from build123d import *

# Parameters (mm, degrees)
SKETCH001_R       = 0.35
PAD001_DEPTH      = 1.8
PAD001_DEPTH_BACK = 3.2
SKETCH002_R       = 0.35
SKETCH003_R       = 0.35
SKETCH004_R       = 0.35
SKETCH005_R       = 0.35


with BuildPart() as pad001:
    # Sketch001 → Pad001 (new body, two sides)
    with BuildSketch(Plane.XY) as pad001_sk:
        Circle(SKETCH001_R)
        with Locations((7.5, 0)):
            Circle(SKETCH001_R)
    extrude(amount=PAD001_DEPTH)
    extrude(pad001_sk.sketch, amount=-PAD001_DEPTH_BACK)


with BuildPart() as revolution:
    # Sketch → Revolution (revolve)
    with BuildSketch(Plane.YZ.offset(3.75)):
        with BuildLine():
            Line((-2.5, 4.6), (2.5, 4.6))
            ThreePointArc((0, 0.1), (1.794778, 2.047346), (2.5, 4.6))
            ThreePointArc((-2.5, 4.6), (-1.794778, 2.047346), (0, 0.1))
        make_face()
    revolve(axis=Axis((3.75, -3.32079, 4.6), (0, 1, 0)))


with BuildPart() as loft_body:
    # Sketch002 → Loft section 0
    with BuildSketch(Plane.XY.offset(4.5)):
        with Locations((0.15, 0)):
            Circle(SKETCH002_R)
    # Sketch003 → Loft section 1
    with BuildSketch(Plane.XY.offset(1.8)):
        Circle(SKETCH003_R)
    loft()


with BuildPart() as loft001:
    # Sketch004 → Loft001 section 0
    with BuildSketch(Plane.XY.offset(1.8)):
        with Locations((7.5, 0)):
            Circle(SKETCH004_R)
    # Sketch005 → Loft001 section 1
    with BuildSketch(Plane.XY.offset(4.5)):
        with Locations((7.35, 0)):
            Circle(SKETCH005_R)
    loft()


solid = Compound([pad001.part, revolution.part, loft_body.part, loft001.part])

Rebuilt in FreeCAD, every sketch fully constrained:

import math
import FreeCAD as App
import Part
import Sketcher

V = App.Vector

doc = App.newDocument("Part")
params = doc.addObject("Spreadsheet::Sheet", "Params")
for row, (alias, value) in enumerate([
    ("sketch1_diameter", "0.7 mm"),
    ("pad1_length", "1.8 mm"),
    ("pad1_length2", "3.2 mm"),
    ("sketch2_width", "5 mm"),
    ("revolution_angle", "360 deg"),
    ("sketch3_diameter", "0.7 mm"),
    ("sketch4_diameter", "0.7 mm"),
    ("sketch5_diameter", "0.7 mm"),
    ("sketch6_diameter", "0.7 mm"),
], start=1):
    params.set(f"A{row}", alias)
    params.set(f"B{row}", "=" + value)
    params.setAlias(f"B{row}", alias)

body = doc.addObject("PartDesign::Body", "Body")
body.AllowCompound = True

sketch1 = body.newObject("Sketcher::SketchObject", "Sketch")
sketch1.AttachmentSupport = (doc.getObject("XY_Plane"), [""])
sketch1.MapMode = "FlatFace"
sketch1.addGeometry(Part.Circle(V(0, 0, 0), V(0, 0, 1), 0.35), False)
sketch1.addGeometry(Part.Circle(V(7.5, 0, 0), V(0, 0, 1), 0.35), False)
sketch1.addConstraint(Sketcher.Constraint("Coincident", 0, 3, -1, 1))
sketch1.addConstraint(Sketcher.Constraint("Equal", 0, 1))
sketch1.addConstraint(Sketcher.Constraint("PointOnObject", 1, 3, -1))
sketch1.addConstraint(Sketcher.Constraint("Diameter", 0, 0.7))
sketch1.addConstraint(Sketcher.Constraint("DistanceX", -1, 1, 1, 3, 7.5))
sketch1.setExpression("Constraints[3]", "Params.sketch1_diameter")
pad1 = body.newObject("PartDesign::Pad", "Pad")
pad1.Profile = sketch1
pad1.Type = "TwoLengths"
pad1.setExpression("Length", "Params.pad1_length")
pad1.setExpression("Length2", "Params.pad1_length2")
body2 = doc.addObject("PartDesign::Body", "Body001")

sketch2 = body2.newObject("Sketcher::SketchObject", "Sketch001")
sketch2.AttachmentSupport = (doc.getObject("YZ_Plane001"), [""])
sketch2.MapMode = "FlatFace"
sketch2.AttachmentOffset = App.Placement(V(0, 0, 3.75), App.Rotation())
sketch2.addGeometry(Part.LineSegment(V(2.5, 4.6, 0), V(-2.5, 4.6, 0)), False)
sketch2.addGeometry(Part.ArcOfCircle(Part.Circle(V(3.124001, 4.78, 0), V(0, 0, 1), 5.626881), math.radians(-178.166831), math.radians(-123.723961)), False)
sketch2.addGeometry(Part.ArcOfCircle(Part.Circle(V(-3.124001, 4.78, 0), V(0, 0, 1), 5.626881), math.radians(-56.276039), math.radians(-1.833169)), False)
sketch2.addGeometry(Part.LineSegment(V(-3.124001, 4.6, 0), V(3.124001, 4.6, 0)), True)
sketch2.addConstraint(Sketcher.Constraint("Coincident", 0, 2, 1, 1))
sketch2.addConstraint(Sketcher.Constraint("Coincident", 1, 2, 2, 1))
sketch2.addConstraint(Sketcher.Constraint("Coincident", 2, 2, 0, 1))
sketch2.addConstraint(Sketcher.Constraint("Horizontal", 0))
sketch2.addConstraint(Sketcher.Constraint("Horizontal", 3))
sketch2.addConstraint(Sketcher.Constraint("Equal", 1, 2))
sketch2.addConstraint(Sketcher.Constraint("Symmetric", 1, 3, 2, 3, -2))
sketch2.addConstraint(Sketcher.Constraint("Horizontal", 2, 2, 3, 1))
sketch2.addConstraint(Sketcher.Constraint("Vertical", 2, 3, 3, 1))
sketch2.addConstraint(Sketcher.Constraint("Vertical", 1, 3, 3, 2))
sketch2.addConstraint(Sketcher.Constraint("DistanceX", 0, 2, 0, 1, 5.0))
sketch2.addConstraint(Sketcher.Constraint("DistanceY", -1, 1, 0, 2, 4.6))
sketch2.addConstraint(Sketcher.Constraint("DistanceY", -1, 1, 1, 2, 0.1))
sketch2.addConstraint(Sketcher.Constraint("DistanceX", 3, 1, 3, 2, 6.248002))
sketch2.setExpression("Constraints[10]", "Params.sketch2_width")
revolution = body2.newObject("PartDesign::Revolution", "Revolution")
revolution.Profile = sketch2
revolution.ReferenceAxis = (sketch2, ["Axis0"])
revolution.setExpression("Angle", "Params.revolution_angle")
body3 = doc.addObject("PartDesign::Body", "Body002")

sketch3 = body3.newObject("Sketcher::SketchObject", "Sketch002")
sketch3.AttachmentSupport = (doc.getObject("XY_Plane002"), [""])
sketch3.MapMode = "FlatFace"
sketch3.AttachmentOffset = App.Placement(V(0, 0, 4.5), App.Rotation())
sketch3.addGeometry(Part.Circle(V(0.15, 0, 0), V(0, 0, 1), 0.35), False)
sketch3.addConstraint(Sketcher.Constraint("PointOnObject", 0, 3, -1))
sketch3.addConstraint(Sketcher.Constraint("Diameter", 0, 0.7))
sketch3.addConstraint(Sketcher.Constraint("DistanceX", -1, 1, 0, 3, 0.15))
sketch3.setExpression("Constraints[1]", "Params.sketch3_diameter")

sketch4 = body3.newObject("Sketcher::SketchObject", "Sketch003")
sketch4.AttachmentSupport = (doc.getObject("XY_Plane002"), [""])
sketch4.MapMode = "FlatFace"
sketch4.AttachmentOffset = App.Placement(V(0, 0, 1.8), App.Rotation())
sketch4.addGeometry(Part.Circle(V(0, 0, 0), V(0, 0, 1), 0.35), False)
sketch4.addConstraint(Sketcher.Constraint("Coincident", 0, 3, -1, 1))
sketch4.addConstraint(Sketcher.Constraint("Diameter", 0, 0.7))
sketch4.setExpression("Constraints[1]", "Params.sketch4_diameter")

additiveloft = body3.newObject("PartDesign::AdditiveLoft", "AdditiveLoft")
additiveloft.Profile = sketch3
additiveloft.Sections = [sketch4]
body4 = doc.addObject("PartDesign::Body", "Body003")

sketch5 = body4.newObject("Sketcher::SketchObject", "Sketch004")
sketch5.AttachmentSupport = (doc.getObject("XY_Plane003"), [""])
sketch5.MapMode = "FlatFace"
sketch5.AttachmentOffset = App.Placement(V(0, 0, 1.8), App.Rotation())
sketch5.addGeometry(Part.Circle(V(7.5, 0, 0), V(0, 0, 1), 0.35), False)
sketch5.addConstraint(Sketcher.Constraint("PointOnObject", 0, 3, -1))
sketch5.addConstraint(Sketcher.Constraint("Diameter", 0, 0.7))
sketch5.addConstraint(Sketcher.Constraint("DistanceX", -1, 1, 0, 3, 7.5))
sketch5.setExpression("Constraints[1]", "Params.sketch5_diameter")

sketch6 = body4.newObject("Sketcher::SketchObject", "Sketch005")
sketch6.AttachmentSupport = (doc.getObject("XY_Plane003"), [""])
sketch6.MapMode = "FlatFace"
sketch6.AttachmentOffset = App.Placement(V(0, 0, 4.5), App.Rotation())
sketch6.addGeometry(Part.Circle(V(7.35, 0, 0), V(0, 0, 1), 0.35), False)
sketch6.addConstraint(Sketcher.Constraint("PointOnObject", 0, 3, -1))
sketch6.addConstraint(Sketcher.Constraint("Diameter", 0, 0.7))
sketch6.addConstraint(Sketcher.Constraint("DistanceX", -1, 1, 0, 3, 7.35))
sketch6.setExpression("Constraints[1]", "Params.sketch6_diameter")

additiveloft2 = body4.newObject("PartDesign::AdditiveLoft", "AdditiveLoft001")
additiveloft2.Profile = sketch5
additiveloft2.Sections = [sketch6]

doc.recompute()
